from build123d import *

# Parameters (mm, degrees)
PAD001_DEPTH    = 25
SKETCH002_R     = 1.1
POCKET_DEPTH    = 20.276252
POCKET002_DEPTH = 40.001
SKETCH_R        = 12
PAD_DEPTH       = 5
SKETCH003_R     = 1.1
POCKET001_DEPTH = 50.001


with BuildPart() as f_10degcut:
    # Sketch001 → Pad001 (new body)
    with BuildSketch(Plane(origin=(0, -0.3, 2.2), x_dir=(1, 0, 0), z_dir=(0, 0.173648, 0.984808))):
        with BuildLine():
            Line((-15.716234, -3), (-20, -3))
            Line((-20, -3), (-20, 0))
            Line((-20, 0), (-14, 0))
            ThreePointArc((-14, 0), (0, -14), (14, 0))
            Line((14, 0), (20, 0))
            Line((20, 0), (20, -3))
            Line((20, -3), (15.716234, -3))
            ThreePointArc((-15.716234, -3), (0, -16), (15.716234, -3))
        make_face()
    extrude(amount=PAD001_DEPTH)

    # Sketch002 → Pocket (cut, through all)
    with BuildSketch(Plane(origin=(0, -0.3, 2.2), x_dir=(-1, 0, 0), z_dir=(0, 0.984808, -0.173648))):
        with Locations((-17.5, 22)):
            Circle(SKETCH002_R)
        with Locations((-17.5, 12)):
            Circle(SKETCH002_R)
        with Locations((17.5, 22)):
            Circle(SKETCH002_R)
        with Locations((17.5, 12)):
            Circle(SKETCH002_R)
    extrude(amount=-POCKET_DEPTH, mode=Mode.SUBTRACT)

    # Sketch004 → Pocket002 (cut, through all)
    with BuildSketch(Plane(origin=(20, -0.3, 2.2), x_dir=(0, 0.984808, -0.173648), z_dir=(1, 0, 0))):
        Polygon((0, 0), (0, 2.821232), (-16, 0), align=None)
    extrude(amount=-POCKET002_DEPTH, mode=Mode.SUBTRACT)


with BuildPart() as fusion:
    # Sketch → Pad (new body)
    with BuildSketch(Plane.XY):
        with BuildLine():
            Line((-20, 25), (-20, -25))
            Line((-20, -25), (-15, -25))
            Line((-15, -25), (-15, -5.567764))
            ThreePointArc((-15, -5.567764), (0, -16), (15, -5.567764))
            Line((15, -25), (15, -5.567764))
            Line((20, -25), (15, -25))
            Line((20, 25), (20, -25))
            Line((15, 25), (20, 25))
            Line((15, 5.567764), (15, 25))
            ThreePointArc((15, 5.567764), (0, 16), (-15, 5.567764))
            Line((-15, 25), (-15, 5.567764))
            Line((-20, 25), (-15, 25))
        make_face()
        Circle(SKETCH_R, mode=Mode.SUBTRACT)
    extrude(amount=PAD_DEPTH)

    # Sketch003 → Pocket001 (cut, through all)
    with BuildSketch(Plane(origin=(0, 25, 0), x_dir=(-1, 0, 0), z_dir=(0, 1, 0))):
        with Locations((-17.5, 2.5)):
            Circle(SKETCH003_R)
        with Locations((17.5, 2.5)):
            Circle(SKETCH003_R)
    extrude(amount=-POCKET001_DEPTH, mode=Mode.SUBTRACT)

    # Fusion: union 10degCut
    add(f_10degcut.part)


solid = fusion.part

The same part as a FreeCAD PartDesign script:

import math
import FreeCAD as App
import Part
import Sketcher
from FreeCAD import Vector
Q = App.Units.Quantity


def add_polygon(sketch, points):
    """Adds a closed chain of lines whose ends are joined by coincident constraints."""
    first, n = sketch.GeometryCount, len(points)
    for a, b in zip(points, points[1:] + points[:1]):
        sketch.addGeometry(Part.LineSegment(App.Vector(*a, 0), App.Vector(*b, 0)), False)
    for i in range(n):
        sketch.addConstraint(Sketcher.Constraint("Coincident", first + i, 2, first + (i + 1) % n, 1))

doc = App.newDocument("Part")
params = doc.addObject("Spreadsheet::Sheet", "Params")
for row, (alias, value) in enumerate([
    ("sketch1_radius", "16 mm"),
    ("sketch1_radius2", "14 mm"),
    ("sketch1_width", "6 mm"),
    ("sketch1_height", "3 mm"),
    ("pad1_length", "25 mm"),
    ("sketch2_diameter", "2.2 mm"),
    ("sketch3_length", "16 mm"),
    ("sketch4_diameter", "24 mm"),
    ("sketch4_radius", "16 mm"),
    ("sketch4_width", "5 mm"),
    ("sketch4_height", "50 mm"),
    ("pad2_length", "5 mm"),
    ("sketch5_diameter", "2.2 mm"),
], start=1):
    params.set(f"A{row}", alias)
    params.set(f"B{row}", "=" + value)
    params.setAlias(f"B{row}", alias)

body = doc.addObject("PartDesign::Body", "Body")

# Sketch on an angled plane
sketch1 = doc.addObject("Sketcher::SketchObject", "Sketch")
body.addObject(sketch1)
sketch1.Placement = App.Placement(Vector(0, -0.3, 2.2), App.Rotation(Vector(1, 0, 0), Vector(0, 0.984807791, -0.173647963), Vector(0, 0.173647963, 0.984807791), "ZXY"))
sketch1.addGeometry(Part.LineSegment(Vector(-20, -3, 0), Vector(-15.7, -3, 0)), False)
sketch1.addGeometry(Part.ArcOfCircle(Part.Circle(Vector(0, 0, 0), Vector(0, 0, 1), 16), math.radians(-169), math.radians(-11)), False)
sketch1.addGeometry(Part.LineSegment(Vector(15.7, -3, 0), Vector(20, -3, 0)), False)
sketch1.addGeometry(Part.LineSegment(Vector(20, -3, 0), Vector(20, 0, 0)), False)
sketch1.addGeometry(Part.LineSegment(Vector(20, 0, 0), Vector(14, 0, 0)), False)
sketch1.addGeometry(Part.ArcOfCircle(Part.Circle(Vector(0, 0, 0), Vector(0, 0, 1), 14), math.radians(180), math.radians(360)), False)
sketch1.addGeometry(Part.LineSegment(Vector(-14, 0, 0), Vector(-20, 0, 0)), False)
sketch1.addGeometry(Part.LineSegment(Vector(-20, 0, 0), Vector(-20, -3, 0)), False)
sketch1.addConstraint(Sketcher.Constraint("Coincident", 0, 2, 1, 1))
sketch1.addConstraint(Sketcher.Constraint("Coincident", 1, 2, 2, 1))
sketch1.addConstraint(Sketcher.Constraint("Coincident", 2, 2, 3, 1))
sketch1.addConstraint(Sketcher.Constraint("Coincident", 3, 2, 4, 1))
sketch1.addConstraint(Sketcher.Constraint("Coincident", 4, 2, 5, 2))
sketch1.addConstraint(Sketcher.Constraint("Coincident", 5, 1, 6, 1))
sketch1.addConstraint(Sketcher.Constraint("Coincident", 6, 2, 7, 1))
sketch1.addConstraint(Sketcher.Constraint("Coincident", 7, 2, 0, 1))
sketch1.addConstraint(Sketcher.Constraint("Horizontal", 0))
sketch1.addConstraint(Sketcher.Constraint("Horizontal", 2))
sketch1.addConstraint(Sketcher.Constraint("Vertical", 3))
sketch1.addConstraint(Sketcher.Constraint("Horizontal", 4))
sketch1.addConstraint(Sketcher.Constraint("Horizontal", 6))
sketch1.addConstraint(Sketcher.Constraint("Vertical", 7))
sketch1.addConstraint(Sketcher.Constraint("Coincident", 1, 3, -1, 1))
sketch1.addConstraint(Sketcher.Constraint("Coincident", 5, 3, -1, 1))
sketch1.addConstraint(Sketcher.Constraint("Symmetric", 3, 2, 6, 2, -1, 1))
sketch1.addConstraint(Sketcher.Constraint("PointOnObject", 3, 2, -1))
sketch1.addConstraint(Sketcher.Constraint("Horizontal", 0, 2, 1, 2))
sketch1.addConstraint(Sketcher.Constraint("Radius", 1, Q("16 mm")))
sketch1.addConstraint(Sketcher.Constraint("Radius", 5, Q("14 mm")))
sketch1.addConstraint(Sketcher.Constraint("DistanceX", 4, 2, 4, 1, Q("6 mm")))
sketch1.addConstraint(Sketcher.Constraint("DistanceY", 3, 1, 3, 2, Q("3 mm")))
sketch1.setExpression("Constraints[19]", "Params.sketch1_radius")
sketch1.setExpression("Constraints[20]", "Params.sketch1_radius2")
sketch1.setExpression("Constraints[21]", "Params.sketch1_width")
sketch1.setExpression("Constraints[22]", "Params.sketch1_height")
pad1 = doc.addObject("PartDesign::Pad", "Pad")
body.addObject(pad1)
pad1.Profile = sketch1
pad1.setExpression("Length", "Params.pad1_length")

# Sketch on an angled plane
sketch2 = doc.addObject("Sketcher::SketchObject", "Sketch001")
body.addObject(sketch2)
sketch2.Placement = App.Placement(Vector(0, -0.3, 2.2), App.Rotation(Vector(-1, 0, 0), Vector(0, 0.173647963, 0.984807791), Vector(0, 0.984807791, -0.173647963), "ZXY"))
sketch2.addGeometry(Part.Circle(Vector(-17.5, 22, 0), Vector(0, 0, 1), 1.1), False)
sketch2.addGeometry(Part.Circle(Vector(-17.5, 12, 0), Vector(0, 0, 1), 1.1), False)
sketch2.addGeometry(Part.Circle(Vector(17.5, 22, 0), Vector(0, 0, 1), 1.1), False)
sketch2.addGeometry(Part.Circle(Vector(17.5, 12, 0), Vector(0, 0, 1), 1.1), False)
sketch2.addConstraint(Sketcher.Constraint("Equal", 0, 1))
sketch2.addConstraint(Sketcher.Constraint("Equal", 1, 2))
sketch2.addConstraint(Sketcher.Constraint("Equal", 2, 3))
sketch2.addConstraint(Sketcher.Constraint("Symmetric", 0, 3, 2, 3, -2))
sketch2.addConstraint(Sketcher.Constraint("Symmetric", 1, 3, 3, 3, -2))
sketch2.addConstraint(Sketcher.Constraint("Vertical", 0, 3, 1, 3))
sketch2.addConstraint(Sketcher.Constraint("Diameter", 0, Q("2.2 mm")))
sketch2.addConstraint(Sketcher.Constraint("DistanceY", -1, 1, 0, 3, Q("22 mm")))
sketch2.addConstraint(Sketcher.Constraint("DistanceY", -1, 1, 1, 3, Q("12 mm")))
sketch2.addConstraint(Sketcher.Constraint("DistanceX", 0, 3, 2, 3, Q("35 mm")))
sketch2.setExpression("Constraints[6]", "Params.sketch2_diameter")
pocket1 = doc.addObject("PartDesign::Pocket", "Pocket")
body.addObject(pocket1)
pocket1.Profile = sketch2
pocket1.Type = "ThroughAll"

# Sketch on YZ plane
sketch3 = doc.addObject("Sketcher::SketchObject", "Sketch002")
body.addObject(sketch3)
sketch3.AttachmentSupport = (doc.YZ_Plane, [""])
sketch3.MapMode = "FlatFace"
sketch3.AttachmentOffset = App.Placement(Vector(0, 0, 20), App.Rotation())
add_polygon(sketch3, [(-0.3, 2.2), (0.2, 5), (-16.1, 5)])  # lines 0-2
sketch3.addConstraint(Sketcher.Constraint("Perpendicular", 0, 2))
sketch3.addConstraint(Sketcher.Constraint("Angle", 0, Q("80.000012 deg")))
sketch3.addConstraint(Sketcher.Constraint("Angle", 1, Q("-179.999986 deg")))
sketch3.addConstraint(Sketcher.Constraint("Distance", 2, Q("16 mm")))
sketch3.addConstraint(Sketcher.Constraint("DistanceX", 2, 2, -1, 1, Q("0.3 mm")))
sketch3.addConstraint(Sketcher.Constraint("DistanceY", -1, 1, 2, 2, Q("2.2 mm")))
sketch3.setExpression("Constraints[6]", "Params.sketch3_length")
pocket2 = doc.addObject("PartDesign::Pocket", "Pocket001")
body.addObject(pocket2)
pocket2.Profile = sketch3
pocket2.Type = "ThroughAll"
body2 = doc.addObject("PartDesign::Body", "Body001")

# Sketch on XY plane
sketch4 = doc.addObject("Sketcher::SketchObject", "Sketch003")
body2.addObject(sketch4)
sketch4.AttachmentSupport = (doc.getObject("XY_Plane001"), [""])
sketch4.MapMode = "FlatFace"
sketch4.addGeometry(Part.LineSegment(Vector(-20, 25, 0), Vector(-20, -25, 0)), False)
sketch4.addGeometry(Part.LineSegment(Vector(-20, -25, 0), Vector(-15, -25, 0)), False)
sketch4.addGeometry(Part.LineSegment(Vector(-15, -25, 0), Vector(-15, -6, 0)), False)
sketch4.addGeometry(Part.ArcOfCircle(Part.Circle(Vector(0, 0, 0), Vector(0, 0, 1), 16), math.radians(-160), math.radians(-20)), False)
sketch4.addGeometry(Part.LineSegment(Vector(15, -6, 0), Vector(15, -25, 0)), False)
sketch4.addGeometry(Part.LineSegment(Vector(15, -25, 0), Vector(20, -25, 0)), False)
sketch4.addGeometry(Part.LineSegment(Vector(20, -25, 0), Vector(20, 25, 0)), False)
sketch4.addGeometry(Part.LineSegment(Vector(20, 25, 0), Vector(15, 25, 0)), False)
sketch4.addGeometry(Part.LineSegment(Vector(15, 25, 0), Vector(15, 6, 0)), False)
sketch4.addGeometry(Part.ArcOfCircle(Part.Circle(Vector(0, 0, 0), Vector(0, 0, 1), 16), math.radians(20), math.radians(160)), False)
sketch4.addGeometry(Part.LineSegment(Vector(-15, 6, 0), Vector(-15, 25, 0)), False)
sketch4.addGeometry(Part.LineSegment(Vector(-15, 25, 0), Vector(-20, 25, 0)), False)
sketch4.addGeometry(Part.Circle(Vector(0, 0, 0), Vector(0, 0, 1), 12), False)
sketch4.addConstraint(Sketcher.Constraint("Coincident", 0, 2, 1, 1))
sketch4.addConstraint(Sketcher.Constraint("Coincident", 1, 2, 2, 1))
sketch4.addConstraint(Sketcher.Constraint("Coincident", 2, 2, 3, 1))
sketch4.addConstraint(Sketcher.Constraint("Coincident", 3, 2, 4, 1))
sketch4.addConstraint(Sketcher.Constraint("Coincident", 4, 2, 5, 1))
sketch4.addConstraint(Sketcher.Constraint("Coincident", 5, 2, 6, 1))
sketch4.addConstraint(Sketcher.Constraint("Coincident", 6, 2, 7, 1))
sketch4.addConstraint(Sketcher.Constraint("Coincident", 7, 2, 8, 1))
sketch4.addConstraint(Sketcher.Constraint("Coincident", 8, 2, 9, 1))
sketch4.addConstraint(Sketcher.Constraint("Coincident", 9, 2, 10, 1))
sketch4.addConstraint(Sketcher.Constraint("Coincident", 10, 2, 11, 1))
sketch4.addConstraint(Sketcher.Constraint("Coincident", 11, 2, 0, 1))
sketch4.addConstraint(Sketcher.Constraint("Vertical", 0))
sketch4.addConstraint(Sketcher.Constraint("Horizontal", 1))
sketch4.addConstraint(Sketcher.Constraint("Vertical", 2))
sketch4.addConstraint(Sketcher.Constraint("Vertical", 4))
sketch4.addConstraint(Sketcher.Constraint("Horizontal", 5))
sketch4.addConstraint(Sketcher.Constraint("Vertical", 6))
sketch4.addConstraint(Sketcher.Constraint("Horizontal", 7))
sketch4.addConstraint(Sketcher.Constraint("Vertical", 8))
sketch4.addConstraint(Sketcher.Constraint("Vertical", 10))
sketch4.addConstraint(Sketcher.Constraint("Horizontal", 11))
sketch4.addConstraint(Sketcher.Constraint("Coincident", 3, 3, -1, 1))
sketch4.addConstraint(Sketcher.Constraint("Coincident", 9, 3, -1, 1))
sketch4.addConstraint(Sketcher.Constraint("Coincident", 12, 3, -1, 1))
sketch4.addConstraint(Sketcher.Constraint("Equal", 3, 9))
sketch4.addConstraint(Sketcher.Constraint("Symmetric", 0, 2, 6, 2, -1, 1))
sketch4.addConstraint(Sketcher.Constraint("Symmetric", 4, 2, 10, 2, -1, 1))
sketch4.addConstraint(Sketcher.Constraint("Symmetric", 1, 2, 4, 2, -2))
sketch4.addConstraint(Sketcher.Constraint("Horizontal", 8, 2, 9, 2))
sketch4.addConstraint(Sketcher.Constraint("Diameter", 12, Q("24 mm")))
sketch4.addConstraint(Sketcher.Constraint("Radius", 3, Q("16 mm")))
sketch4.addConstraint(Sketcher.Constraint("DistanceX", 1, 1, 1, 2, Q("5 mm")))
sketch4.addConstraint(Sketcher.Constraint("DistanceY", 0, 2, 0, 1, Q("50 mm")))
sketch4.addConstraint(Sketcher.Constraint("DistanceX", 0, 2, -1, 1, Q("20 mm")))
sketch4.setExpression("Constraints[30]", "Params.sketch4_diameter")
sketch4.setExpression("Constraints[31]", "Params.sketch4_radius")
sketch4.setExpression("Constraints[32]", "Params.sketch4_width")
sketch4.setExpression("Constraints[33]", "Params.sketch4_height")
pad2 = doc.addObject("PartDesign::Pad", "Pad001")
body2.addObject(pad2)
pad2.Profile = sketch4
pad2.setExpression("Length", "Params.pad2_length")

# Sketch on XZ plane
sketch5 = doc.addObject("Sketcher::SketchObject", "Sketch004")
body2.addObject(sketch5)
sketch5.AttachmentSupport = (doc.getObject("XZ_Plane001"), [""])
sketch5.MapMode = "FlatFace"
sketch5.AttachmentOffset = App.Placement(Vector(0, 0, -25), App.Rotation())
sketch5.addGeometry(Part.Circle(Vector(17.5, 2.5, 0), Vector(0, 0, 1), 1.1), False)
sketch5.addGeometry(Part.Circle(Vector(-17.5, 2.5, 0), Vector(0, 0, 1), 1.1), False)
sketch5.addConstraint(Sketcher.Constraint("Equal", 0, 1))
sketch5.addConstraint(Sketcher.Constraint("Symmetric", 0, 3, 1, 3, -2))
sketch5.addConstraint(Sketcher.Constraint("Diameter", 0, Q("2.2 mm")))
sketch5.addConstraint(Sketcher.Constraint("DistanceX", 1, 3, 0, 3, Q("35 mm")))
sketch5.addConstraint(Sketcher.Constraint("DistanceY", -1, 1, 0, 3, Q("2.5 mm")))
sketch5.setExpression("Constraints[2]", "Params.sketch5_diameter")
pocket3 = doc.addObject("PartDesign::Pocket", "Pocket002")
body2.addObject(pocket3)
pocket3.Profile = sketch5
pocket3.Type = "ThroughAll"
pocket3.Reversed = True
doc.recompute()

boolean = doc.addObject("PartDesign::Boolean", "Boolean")
body2.addObject(boolean)
boolean.Type = "Fuse"
boolean.addObjects([body])

doc.recompute()
